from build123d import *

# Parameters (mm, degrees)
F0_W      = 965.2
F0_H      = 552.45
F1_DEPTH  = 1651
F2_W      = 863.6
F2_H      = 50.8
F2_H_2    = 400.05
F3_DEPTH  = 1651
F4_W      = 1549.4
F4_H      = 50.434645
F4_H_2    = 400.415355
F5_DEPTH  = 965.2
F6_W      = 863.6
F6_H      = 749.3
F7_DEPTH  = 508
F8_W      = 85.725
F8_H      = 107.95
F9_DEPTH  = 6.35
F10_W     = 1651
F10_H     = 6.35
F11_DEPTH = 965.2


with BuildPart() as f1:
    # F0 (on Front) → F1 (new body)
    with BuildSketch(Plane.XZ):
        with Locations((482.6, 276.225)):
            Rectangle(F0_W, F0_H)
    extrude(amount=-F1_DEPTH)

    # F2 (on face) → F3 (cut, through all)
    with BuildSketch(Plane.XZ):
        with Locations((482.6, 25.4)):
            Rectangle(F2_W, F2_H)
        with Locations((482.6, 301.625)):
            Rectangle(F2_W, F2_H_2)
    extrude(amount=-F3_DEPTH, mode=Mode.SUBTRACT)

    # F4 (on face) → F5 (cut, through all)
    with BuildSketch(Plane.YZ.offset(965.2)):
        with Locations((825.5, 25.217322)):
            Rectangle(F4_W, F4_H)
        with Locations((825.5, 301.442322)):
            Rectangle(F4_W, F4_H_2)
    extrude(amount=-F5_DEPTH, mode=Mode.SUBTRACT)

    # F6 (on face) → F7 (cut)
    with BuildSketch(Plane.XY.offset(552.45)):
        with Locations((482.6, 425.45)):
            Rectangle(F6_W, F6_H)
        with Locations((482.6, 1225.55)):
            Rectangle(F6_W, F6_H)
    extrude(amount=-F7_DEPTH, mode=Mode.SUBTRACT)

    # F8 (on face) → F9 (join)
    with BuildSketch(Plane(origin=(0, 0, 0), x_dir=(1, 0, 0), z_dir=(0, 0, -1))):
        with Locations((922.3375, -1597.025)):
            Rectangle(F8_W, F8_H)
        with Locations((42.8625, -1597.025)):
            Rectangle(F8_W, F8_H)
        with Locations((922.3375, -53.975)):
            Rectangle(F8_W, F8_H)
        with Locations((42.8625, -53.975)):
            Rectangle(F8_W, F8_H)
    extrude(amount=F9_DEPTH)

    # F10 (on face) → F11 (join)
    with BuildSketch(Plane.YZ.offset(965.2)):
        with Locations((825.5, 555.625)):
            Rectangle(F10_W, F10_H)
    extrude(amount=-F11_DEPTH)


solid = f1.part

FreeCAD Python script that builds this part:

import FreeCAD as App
import Part
import Sketcher
Q = App.Units.Quantity

doc = App.newDocument("Part")
params = doc.addObject("Spreadsheet::Sheet", "Params")
for row, (alias, value) in enumerate([
    ("sketch1_width", "38 in"),
    ("sketch1_height", "21.75 in"),
    ("pad1_length", "65 in"),
    ("sketch2_width", "34 in"),
    ("sketch2_height", "2 in"),
    ("sketch2_height2", "15.75 in"),
    ("sketch3_width", "61 in"),
    ("sketch4_width", "34 in"),
    ("sketch4_height", "29.5 in"),
    ("pocket3_length", "20 in"),
    ("sketch5_height", "4.25 in"),
    ("sketch5_width", "3.375 in"),
    ("pad2_length", "0.25 in"),
    ("sketch6_width", "65 in"),
    ("sketch6_height", "0.25 in"),
    ("pad3_length", "38 in"),
], start=1):
    params.set(f"A{row}", alias)
    params.set(f"B{row}", "=" + value)
    params.setAlias(f"B{row}", alias)

body = doc.addObject("PartDesign::Body", "Body")

sketch1 = body.newObject("Sketcher::SketchObject", "Sketch")
sketch1.AttachmentSupport = (doc.getObject("XZ_Plane"), [""])
sketch1.MapMode = "FlatFace"
sketch1.addGeometry(Part.LineSegment(App.Vector(0, 552.45, 0), App.Vector(0, 0, 0)), False)
sketch1.addGeometry(Part.LineSegment(App.Vector(0, 0, 0), App.Vector(965.2, 0, 0)), False)
sketch1.addGeometry(Part.LineSegment(App.Vector(965.2, 0, 0), App.Vector(965.2, 552.45, 0)), False)
sketch1.addGeometry(Part.LineSegment(App.Vector(965.2, 552.45, 0), App.Vector(0, 552.45, 0)), False)
sketch1.addConstraint(Sketcher.Constraint("Coincident", 0, 2, 1, 1))
sketch1.addConstraint(Sketcher.Constraint("Coincident", 1, 2, 2, 1))
sketch1.addConstraint(Sketcher.Constraint("Coincident", 2, 2, 3, 1))
sketch1.addConstraint(Sketcher.Constraint("Coincident", 3, 2, 0, 1))
sketch1.addConstraint(Sketcher.Constraint("Vertical", 0))
sketch1.addConstraint(Sketcher.Constraint("Horizontal", 1))
sketch1.addConstraint(Sketcher.Constraint("Vertical", 2))
sketch1.addConstraint(Sketcher.Constraint("Horizontal", 3))
sketch1.addConstraint(Sketcher.Constraint("Coincident", 0, 2, -1, 1))
sketch1.addConstraint(Sketcher.Constraint("DistanceX", 1, 1, 1, 2, Q("38 in")))
sketch1.addConstraint(Sketcher.Constraint("DistanceY", 0, 2, 0, 1, Q("21.75 in")))
sketch1.setExpression("Constraints[9]", "Params.sketch1_width")
sketch1.setExpression("Constraints[10]", "Params.sketch1_height")
pad1 = body.newObject("PartDesign::Pad", "Pad")
pad1.Profile = sketch1
pad1.setExpression("Length", "Params.pad1_length")
pad1.Reversed = True

sketch2 = body.newObject("Sketcher::SketchObject", "Sketch001")
sketch2.AttachmentSupport = (doc.getObject("XZ_Plane"), [""])
sketch2.MapMode = "FlatFace"
sketch2.addGeometry(Part.LineSegment(App.Vector(50.8, 50.8, 0), App.Vector(50.8, 0, 0)), False)
sketch2.addGeometry(Part.LineSegment(App.Vector(50.8, 0, 0), App.Vector(914.4, 0, 0)), False)
sketch2.addGeometry(Part.LineSegment(App.Vector(914.4, 0, 0), App.Vector(914.4, 50.8, 0)), False)
sketch2.addGeometry(Part.LineSegment(App.Vector(914.4, 50.8, 0), App.Vector(50.8, 50.8, 0)), False)
sketch2.addGeometry(Part.LineSegment(App.Vector(50.8, 501.65, 0), App.Vector(50.8, 101.6, 0)), False)
sketch2.addGeometry(Part.LineSegment(App.Vector(50.8, 101.6, 0), App.Vector(914.4, 101.6, 0)), False)
sketch2.addGeometry(Part.LineSegment(App.Vector(914.4, 101.6, 0), App.Vector(914.4, 501.65, 0)), False)
sketch2.addGeometry(Part.LineSegment(App.Vector(914.4, 501.65, 0), App.Vector(50.8, 501.65, 0)), False)
sketch2.addConstraint(Sketcher.Constraint("Coincident", 0, 2, 1, 1))
sketch2.addConstraint(Sketcher.Constraint("Coincident", 1, 2, 2, 1))
sketch2.addConstraint(Sketcher.Constraint("Coincident", 2, 2, 3, 1))
sketch2.addConstraint(Sketcher.Constraint("Coincident", 3, 2, 0, 1))
sketch2.addConstraint(Sketcher.Constraint("Coincident", 4, 2, 5, 1))
sketch2.addConstraint(Sketcher.Constraint("Coincident", 5, 2, 6, 1))
sketch2.addConstraint(Sketcher.Constraint("Coincident", 6, 2, 7, 1))
sketch2.addConstraint(Sketcher.Constraint("Coincident", 7, 2, 4, 1))
sketch2.addConstraint(Sketcher.Constraint("Vertical", 0))
sketch2.addConstraint(Sketcher.Constraint("Horizontal", 1))
sketch2.addConstraint(Sketcher.Constraint("Vertical", 2))
sketch2.addConstraint(Sketcher.Constraint("Horizontal", 3))
sketch2.addConstraint(Sketcher.Constraint("Vertical", 4))
sketch2.addConstraint(Sketcher.Constraint("Horizontal", 5))
sketch2.addConstraint(Sketcher.Constraint("Vertical", 6))
sketch2.addConstraint(Sketcher.Constraint("Horizontal", 7))
sketch2.addConstraint(Sketcher.Constraint("PointOnObject", 0, 2, -1))
sketch2.addConstraint(Sketcher.Constraint("Vertical", 3, 2, 4, 2))
sketch2.addConstraint(Sketcher.Constraint("Vertical", 2, 2, 5, 2))
sketch2.addConstraint(Sketcher.Constraint("DistanceX", 1, 1, 1, 2, Q("34 in")))
sketch2.addConstraint(Sketcher.Constraint("DistanceY", 0, 2, 0, 1, Q("2 in")))
sketch2.addConstraint(Sketcher.Constraint("DistanceX", -1, 1, 0, 2, Q("2 in")))
sketch2.addConstraint(Sketcher.Constraint("DistanceY", -1, 1, 4, 2, Q("4 in")))
sketch2.addConstraint(Sketcher.Constraint("DistanceY", 4, 2, 4, 1, Q("15.75 in")))
sketch2.setExpression("Constraints[19]", "Params.sketch2_width")
sketch2.setExpression("Constraints[20]", "Params.sketch2_height")
sketch2.setExpression("Constraints[23]", "Params.sketch2_height2")
pocket1 = body.newObject("PartDesign::Pocket", "Pocket")
pocket1.Profile = sketch2
pocket1.Type = "ThroughAll"

sketch3 = body.newObject("Sketcher::SketchObject", "Sketch002")
sketch3.AttachmentSupport = (doc.getObject("YZ_Plane"), [""])
sketch3.MapMode = "FlatFace"
sketch3.AttachmentOffset = App.Placement(App.Vector(0, 0, 38 * 25.4), App.Rotation())
sketch3.addGeometry(Part.LineSegment(App.Vector(50.8, 50.434644, 0), App.Vector(50.8, 0, 0)), False)
sketch3.addGeometry(Part.LineSegment(App.Vector(50.8, 0, 0), App.Vector(1600.2, 0, 0)), False)
sketch3.addGeometry(Part.LineSegment(App.Vector(1600.2, 0, 0), App.Vector(1600.2, 50.434644, 0)), False)
sketch3.addGeometry(Part.LineSegment(App.Vector(1600.2, 50.434644, 0), App.Vector(50.8, 50.434644, 0)), False)
sketch3.addGeometry(Part.LineSegment(App.Vector(50.8, 501.649999, 0), App.Vector(50.8, 101.234645, 0)), False)
sketch3.addGeometry(Part.LineSegment(App.Vector(50.8, 101.234645, 0), App.Vector(1600.2, 101.234645, 0)), False)
sketch3.addGeometry(Part.LineSegment(App.Vector(1600.2, 101.234645, 0), App.Vector(1600.2, 501.649999, 0)), False)
sketch3.addGeometry(Part.LineSegment(App.Vector(1600.2, 501.649999, 0), App.Vector(50.8, 501.649999, 0)), False)
sketch3.addConstraint(Sketcher.Constraint("Coincident", 0, 2, 1, 1))
sketch3.addConstraint(Sketcher.Constraint("Coincident", 1, 2, 2, 1))
sketch3.addConstraint(Sketcher.Constraint("Coincident", 2, 2, 3, 1))
sketch3.addConstraint(Sketcher.Constraint("Coincident", 3, 2, 0, 1))
sketch3.addConstraint(Sketcher.Constraint("Coincident", 4, 2, 5, 1))
sketch3.addConstraint(Sketcher.Constraint("Coincident", 5, 2, 6, 1))
sketch3.addConstraint(Sketcher.Constraint("Coincident", 6, 2, 7, 1))
sketch3.addConstraint(Sketcher.Constraint("Coincident", 7, 2, 4, 1))
sketch3.addConstraint(Sketcher.Constraint("Vertical", 0))
sketch3.addConstraint(Sketcher.Constraint("Horizontal", 1))
sketch3.addConstraint(Sketcher.Constraint("Vertical", 2))
sketch3.addConstraint(Sketcher.Constraint("Horizontal", 3))
sketch3.addConstraint(Sketcher.Constraint("Vertical", 4))
sketch3.addConstraint(Sketcher.Constraint("Horizontal", 5))
sketch3.addConstraint(Sketcher.Constraint("Vertical", 6))
sketch3.addConstraint(Sketcher.Constraint("Horizontal", 7))
sketch3.addConstraint(Sketcher.Constraint("PointOnObject", 0, 2, -1))
sketch3.addConstraint(Sketcher.Constraint("Vertical", 3, 2, 4, 2))
sketch3.addConstraint(Sketcher.Constraint("Vertical", 2, 2, 5, 2))
sketch3.addConstraint(Sketcher.Constraint("DistanceX", 1, 1, 1, 2, Q("61 in")))
sketch3.addConstraint(Sketcher.Constraint("DistanceX", -1, 1, 0, 2, Q("2 in")))
sketch3.addConstraint(Sketcher.Constraint("DistanceY", 3, 2, 4, 2, Q("2 in")))
sketch3.addConstraint(Sketcher.Constraint("DistanceY", -1, 1, 6, 2, Q("19.75 in")))
sketch3.addConstraint(Sketcher.Constraint("DistanceY", 0, 2, 0, 1, Q("50.434645 mm")))
sketch3.setExpression("Constraints[19]", "Params.sketch3_width")
pocket2 = body.newObject("PartDesign::Pocket", "Pocket001")
pocket2.Profile = sketch3
pocket2.Type = "ThroughAll"

sketch4 = body.newObject("Sketcher::SketchObject", "Sketch003")
sketch4.AttachmentSupport = (doc.getObject("XY_Plane"), [""])
sketch4.MapMode = "FlatFace"
sketch4.AttachmentOffset = App.Placement(App.Vector(0, 0, 21.75 * 25.4), App.Rotation())
sketch4.addGeometry(Part.LineSegment(App.Vector(50.8, 800.1, 0), App.Vector(50.8, 50.8, 0)), False)
sketch4.addGeometry(Part.LineSegment(App.Vector(50.8, 50.8, 0), App.Vector(914.4, 50.8, 0)), False)
sketch4.addGeometry(Part.LineSegment(App.Vector(914.4, 50.8, 0), App.Vector(914.4, 800.1, 0)), False)
sketch4.addGeometry(Part.LineSegment(App.Vector(914.4, 800.1, 0), App.Vector(50.8, 800.1, 0)), False)
sketch4.addGeometry(Part.LineSegment(App.Vector(50.8, 1600.2, 0), App.Vector(50.8, 850.9, 0)), False)
sketch4.addGeometry(Part.LineSegment(App.Vector(50.8, 850.9, 0), App.Vector(914.4, 850.9, 0)), False)
sketch4.addGeometry(Part.LineSegment(App.Vector(914.4, 850.9, 0), App.Vector(914.4, 1600.2, 0)), False)
sketch4.addGeometry(Part.LineSegment(App.Vector(914.4, 1600.2, 0), App.Vector(50.8, 1600.2, 0)), False)
sketch4.addConstraint(Sketcher.Constraint("Coincident", 0, 2, 1, 1))
sketch4.addConstraint(Sketcher.Constraint("Coincident", 1, 2, 2, 1))
sketch4.addConstraint(Sketcher.Constraint("Coincident", 2, 2, 3, 1))
sketch4.addConstraint(Sketcher.Constraint("Coincident", 3, 2, 0, 1))
sketch4.addConstraint(Sketcher.Constraint("Coincident", 4, 2, 5, 1))
sketch4.addConstraint(Sketcher.Constraint("Coincident", 5, 2, 6, 1))
sketch4.addConstraint(Sketcher.Constraint("Coincident", 6, 2, 7, 1))
sketch4.addConstraint(Sketcher.Constraint("Coincident", 7, 2, 4, 1))
sketch4.addConstraint(Sketcher.Constraint("Vertical", 0))
sketch4.addConstraint(Sketcher.Constraint("Horizontal", 1))
sketch4.addConstraint(Sketcher.Constraint("Vertical", 2))
sketch4.addConstraint(Sketcher.Constraint("Horizontal", 3))
sketch4.addConstraint(Sketcher.Constraint("Vertical", 4))
sketch4.addConstraint(Sketcher.Constraint("Horizontal", 5))
sketch4.addConstraint(Sketcher.Constraint("Vertical", 6))
sketch4.addConstraint(Sketcher.Constraint("Horizontal", 7))
sketch4.addConstraint(Sketcher.Constraint("Vertical", 3, 2, 4, 2))
sketch4.addConstraint(Sketcher.Constraint("Vertical", 2, 2, 5, 2))
sketch4.addConstraint(Sketcher.Constraint("Equal", 2, 4))
sketch4.addConstraint(Sketcher.Constraint("DistanceX", 1, 1, 1, 2, Q("34 in")))
sketch4.addConstraint(Sketcher.Constraint("DistanceY", 0, 2, 0, 1, Q("29.5 in")))
sketch4.addConstraint(Sketcher.Constraint("DistanceX", -1, 1, 0, 2, Q("2 in")))
sketch4.addConstraint(Sketcher.Constraint("DistanceY", -1, 1, 0, 2, Q("2 in")))
sketch4.addConstraint(Sketcher.Constraint("DistanceY", -1, 1, 6, 2, Q("63 in")))
sketch4.setExpression("Constraints[19]", "Params.sketch4_width")
sketch4.setExpression("Constraints[20]", "Params.sketch4_height")
pocket3 = body.newObject("PartDesign::Pocket", "Pocket002")
pocket3.Profile = sketch4
pocket3.setExpression("Length", "Params.pocket3_length")

sketch5 = body.newObject("Sketcher::SketchObject", "Sketch004")
sketch5.AttachmentSupport = (doc.getObject("XY_Plane"), [""])
sketch5.MapMode = "FlatFace"
sketch5.addGeometry(Part.LineSegment(App.Vector(879.475, 1543.05, 0), App.Vector(879.475, 1651, 0)), False)
sketch5.addGeometry(Part.LineSegment(App.Vector(879.475, 1651, 0), App.Vector(965.2, 1651, 0)), False)
sketch5.addGeometry(Part.LineSegment(App.Vector(965.2, 1651, 0), App.Vector(965.2, 1543.05, 0)), False)
sketch5.addGeometry(Part.LineSegment(App.Vector(965.2, 1543.05, 0), App.Vector(879.475, 1543.05, 0)), False)
sketch5.addGeometry(Part.LineSegment(App.Vector(0, 1543.05, 0), App.Vector(0, 1651, 0)), False)
sketch5.addGeometry(Part.LineSegment(App.Vector(0, 1651, 0), App.Vector(85.725, 1651, 0)), False)
sketch5.addGeometry(Part.LineSegment(App.Vector(85.725, 1651, 0), App.Vector(85.725, 1543.05, 0)), False)
sketch5.addGeometry(Part.LineSegment(App.Vector(85.725, 1543.05, 0), App.Vector(0, 1543.05, 0)), False)
sketch5.addGeometry(Part.LineSegment(App.Vector(879.475, 0, 0), App.Vector(879.475, 107.95, 0)), False)
sketch5.addGeometry(Part.LineSegment(App.Vector(879.475, 107.95, 0), App.Vector(965.2, 107.95, 0)), False)
sketch5.addGeometry(Part.LineSegment(App.Vector(965.2, 107.95, 0), App.Vector(965.2, 0, 0)), False)
sketch5.addGeometry(Part.LineSegment(App.Vector(965.2, 0, 0), App.Vector(879.475, 0, 0)), False)
sketch5.addGeometry(Part.LineSegment(App.Vector(0, 0, 0), App.Vector(0, 107.95, 0)), False)
sketch5.addGeometry(Part.LineSegment(App.Vector(0, 107.95, 0), App.Vector(85.725, 107.95, 0)), False)
sketch5.addGeometry(Part.LineSegment(App.Vector(85.725, 107.95, 0), App.Vector(85.725, 0, 0)), False)
sketch5.addGeometry(Part.LineSegment(App.Vector(85.725, 0, 0), App.Vector(0, 0, 0)), False)
sketch5.addConstraint(Sketcher.Constraint("Coincident", 0, 2, 1, 1))
sketch5.addConstraint(Sketcher.Constraint("Coincident", 1, 2, 2, 1))
sketch5.addConstraint(Sketcher.Constraint("Coincident", 2, 2, 3, 1))
sketch5.addConstraint(Sketcher.Constraint("Coincident", 3, 2, 0, 1))
sketch5.addConstraint(Sketcher.Constraint("Coincident", 4, 2, 5, 1))
sketch5.addConstraint(Sketcher.Constraint("Coincident", 5, 2, 6, 1))
sketch5.addConstraint(Sketcher.Constraint("Coincident", 6, 2, 7, 1))
sketch5.addConstraint(Sketcher.Constraint("Coincident", 7, 2, 4, 1))
sketch5.addConstraint(Sketcher.Constraint("Coincident", 8, 2, 9, 1))
sketch5.addConstraint(Sketcher.Constraint("Coincident", 9, 2, 10, 1))
sketch5.addConstraint(Sketcher.Constraint("Coincident", 10, 2, 11, 1))
sketch5.addConstraint(Sketcher.Constraint("Coincident", 11, 2, 8, 1))
sketch5.addConstraint(Sketcher.Constraint("Coincident", 12, 2, 13, 1))
sketch5.addConstraint(Sketcher.Constraint("Coincident", 13, 2, 14, 1))
sketch5.addConstraint(Sketcher.Constraint("Coincident", 14, 2, 15, 1))
sketch5.addConstraint(Sketcher.Constraint("Coincident", 15, 2, 12, 1))
sketch5.addConstraint(Sketcher.Constraint("Vertical", 0))
sketch5.addConstraint(Sketcher.Constraint("Horizontal", 1))
sketch5.addConstraint(Sketcher.Constraint("Vertical", 2))
sketch5.addConstraint(Sketcher.Constraint("Horizontal", 3))
sketch5.addConstraint(Sketcher.Constraint("Vertical", 4))
sketch5.addConstraint(Sketcher.Constraint("Horizontal", 5))
sketch5.addConstraint(Sketcher.Constraint("Vertical", 6))
sketch5.addConstraint(Sketcher.Constraint("Horizontal", 7))
sketch5.addConstraint(Sketcher.Constraint("Vertical", 8))
sketch5.addConstraint(Sketcher.Constraint("Horizontal", 9))
sketch5.addConstraint(Sketcher.Constraint("Vertical", 10))
sketch5.addConstraint(Sketcher.Constraint("Horizontal", 11))
sketch5.addConstraint(Sketcher.Constraint("Vertical", 12))
sketch5.addConstraint(Sketcher.Constraint("Horizontal", 13))
sketch5.addConstraint(Sketcher.Constraint("Vertical", 14))
sketch5.addConstraint(Sketcher.Constraint("Horizontal", 15))
sketch5.addConstraint(Sketcher.Constraint("Coincident", 15, 2, -1, 1))
sketch5.addConstraint(Sketcher.Constraint("PointOnObject", 4, 2, -2))
sketch5.addConstraint(Sketcher.Constraint("PointOnObject", 10, 2, -1))
sketch5.addConstraint(Sketcher.Constraint("Horizontal", 1, 2, 4, 2))
sketch5.addConstraint(Sketcher.Constraint("Horizontal", 3, 2, 6, 2))
sketch5.addConstraint(Sketcher.Constraint("Horizontal", 9, 2, 12, 2))
sketch5.addConstraint(Sketcher.Constraint("Vertical", 3, 2, 8, 2))
sketch5.addConstraint(Sketcher.Constraint("Vertical", 2, 2, 9, 2))
sketch5.addConstraint(Sketcher.Constraint("Vertical", 6, 2, 13, 2))
sketch5.addConstraint(Sketcher.Constraint("Equal", 3, 5))
sketch5.addConstraint(Sketcher.Constraint("Equal", 6, 8))
sketch5.addConstraint(Sketcher.Constraint("DistanceY", -1, 1, 0, 2, Q("65 in")))
sketch5.addConstraint(Sketcher.Constraint("DistanceX", -1, 1, 1, 2, Q("38 in")))
sketch5.addConstraint(Sketcher.Constraint("DistanceY", 0, 1, 0, 2, Q("4.25 in")))
sketch5.addConstraint(Sketcher.Constraint("DistanceX", 1, 1, 1, 2, Q("3.375 in")))
sketch5.setExpression("Constraints[45]", "Params.sketch5_height")
sketch5.setExpression("Constraints[46]", "Params.sketch5_width")
pad2 = body.newObject("PartDesign::Pad", "Pad001")
pad2.Profile = sketch5
pad2.setExpression("Length", "Params.pad2_length")
pad2.Reversed = True

sketch6 = body.newObject("Sketcher::SketchObject", "Sketch005")
sketch6.AttachmentSupport = (doc.getObject("YZ_Plane"), [""])
sketch6.MapMode = "FlatFace"
sketch6.AttachmentOffset = App.Placement(App.Vector(0, 0, 38 * 25.4), App.Rotation())
sketch6.addGeometry(Part.LineSegment(App.Vector(0, 558.8, 0), App.Vector(0, 552.45, 0)), False)
sketch6.addGeometry(Part.LineSegment(App.Vector(0, 552.45, 0), App.Vector(1651, 552.45, 0)), False)
sketch6.addGeometry(Part.LineSegment(App.Vector(1651, 552.45, 0), App.Vector(1651, 558.8, 0)), False)
sketch6.addGeometry(Part.LineSegment(App.Vector(1651, 558.8, 0), App.Vector(0, 558.8, 0)), False)
sketch6.addConstraint(Sketcher.Constraint("Coincident", 0, 2, 1, 1))
sketch6.addConstraint(Sketcher.Constraint("Coincident", 1, 2, 2, 1))
sketch6.addConstraint(Sketcher.Constraint("Coincident", 2, 2, 3, 1))
sketch6.addConstraint(Sketcher.Constraint("Coincident", 3, 2, 0, 1))
sketch6.addConstraint(Sketcher.Constraint("Vertical", 0))
sketch6.addConstraint(Sketcher.Constraint("Horizontal", 1))
sketch6.addConstraint(Sketcher.Constraint("Vertical", 2))
sketch6.addConstraint(Sketcher.Constraint("Horizontal", 3))
sketch6.addConstraint(Sketcher.Constraint("PointOnObject", 0, 2, -2))
sketch6.addConstraint(Sketcher.Constraint("DistanceX", 1, 1, 1, 2, Q("65 in")))
sketch6.addConstraint(Sketcher.Constraint("DistanceY", -1, 1, 2, 2, Q("22 in")))
sketch6.addConstraint(Sketcher.Constraint("DistanceY", 0, 2, 0, 1, Q("0.25 in")))
sketch6.setExpression("Constraints[9]", "Params.sketch6_width")
sketch6.setExpression("Constraints[11]", "Params.sketch6_height")
pad3 = body.newObject("PartDesign::Pad", "Pad002")
pad3.Profile = sketch6
pad3.setExpression("Length", "Params.pad3_length")
pad3.Reversed = True

doc.recompute()
